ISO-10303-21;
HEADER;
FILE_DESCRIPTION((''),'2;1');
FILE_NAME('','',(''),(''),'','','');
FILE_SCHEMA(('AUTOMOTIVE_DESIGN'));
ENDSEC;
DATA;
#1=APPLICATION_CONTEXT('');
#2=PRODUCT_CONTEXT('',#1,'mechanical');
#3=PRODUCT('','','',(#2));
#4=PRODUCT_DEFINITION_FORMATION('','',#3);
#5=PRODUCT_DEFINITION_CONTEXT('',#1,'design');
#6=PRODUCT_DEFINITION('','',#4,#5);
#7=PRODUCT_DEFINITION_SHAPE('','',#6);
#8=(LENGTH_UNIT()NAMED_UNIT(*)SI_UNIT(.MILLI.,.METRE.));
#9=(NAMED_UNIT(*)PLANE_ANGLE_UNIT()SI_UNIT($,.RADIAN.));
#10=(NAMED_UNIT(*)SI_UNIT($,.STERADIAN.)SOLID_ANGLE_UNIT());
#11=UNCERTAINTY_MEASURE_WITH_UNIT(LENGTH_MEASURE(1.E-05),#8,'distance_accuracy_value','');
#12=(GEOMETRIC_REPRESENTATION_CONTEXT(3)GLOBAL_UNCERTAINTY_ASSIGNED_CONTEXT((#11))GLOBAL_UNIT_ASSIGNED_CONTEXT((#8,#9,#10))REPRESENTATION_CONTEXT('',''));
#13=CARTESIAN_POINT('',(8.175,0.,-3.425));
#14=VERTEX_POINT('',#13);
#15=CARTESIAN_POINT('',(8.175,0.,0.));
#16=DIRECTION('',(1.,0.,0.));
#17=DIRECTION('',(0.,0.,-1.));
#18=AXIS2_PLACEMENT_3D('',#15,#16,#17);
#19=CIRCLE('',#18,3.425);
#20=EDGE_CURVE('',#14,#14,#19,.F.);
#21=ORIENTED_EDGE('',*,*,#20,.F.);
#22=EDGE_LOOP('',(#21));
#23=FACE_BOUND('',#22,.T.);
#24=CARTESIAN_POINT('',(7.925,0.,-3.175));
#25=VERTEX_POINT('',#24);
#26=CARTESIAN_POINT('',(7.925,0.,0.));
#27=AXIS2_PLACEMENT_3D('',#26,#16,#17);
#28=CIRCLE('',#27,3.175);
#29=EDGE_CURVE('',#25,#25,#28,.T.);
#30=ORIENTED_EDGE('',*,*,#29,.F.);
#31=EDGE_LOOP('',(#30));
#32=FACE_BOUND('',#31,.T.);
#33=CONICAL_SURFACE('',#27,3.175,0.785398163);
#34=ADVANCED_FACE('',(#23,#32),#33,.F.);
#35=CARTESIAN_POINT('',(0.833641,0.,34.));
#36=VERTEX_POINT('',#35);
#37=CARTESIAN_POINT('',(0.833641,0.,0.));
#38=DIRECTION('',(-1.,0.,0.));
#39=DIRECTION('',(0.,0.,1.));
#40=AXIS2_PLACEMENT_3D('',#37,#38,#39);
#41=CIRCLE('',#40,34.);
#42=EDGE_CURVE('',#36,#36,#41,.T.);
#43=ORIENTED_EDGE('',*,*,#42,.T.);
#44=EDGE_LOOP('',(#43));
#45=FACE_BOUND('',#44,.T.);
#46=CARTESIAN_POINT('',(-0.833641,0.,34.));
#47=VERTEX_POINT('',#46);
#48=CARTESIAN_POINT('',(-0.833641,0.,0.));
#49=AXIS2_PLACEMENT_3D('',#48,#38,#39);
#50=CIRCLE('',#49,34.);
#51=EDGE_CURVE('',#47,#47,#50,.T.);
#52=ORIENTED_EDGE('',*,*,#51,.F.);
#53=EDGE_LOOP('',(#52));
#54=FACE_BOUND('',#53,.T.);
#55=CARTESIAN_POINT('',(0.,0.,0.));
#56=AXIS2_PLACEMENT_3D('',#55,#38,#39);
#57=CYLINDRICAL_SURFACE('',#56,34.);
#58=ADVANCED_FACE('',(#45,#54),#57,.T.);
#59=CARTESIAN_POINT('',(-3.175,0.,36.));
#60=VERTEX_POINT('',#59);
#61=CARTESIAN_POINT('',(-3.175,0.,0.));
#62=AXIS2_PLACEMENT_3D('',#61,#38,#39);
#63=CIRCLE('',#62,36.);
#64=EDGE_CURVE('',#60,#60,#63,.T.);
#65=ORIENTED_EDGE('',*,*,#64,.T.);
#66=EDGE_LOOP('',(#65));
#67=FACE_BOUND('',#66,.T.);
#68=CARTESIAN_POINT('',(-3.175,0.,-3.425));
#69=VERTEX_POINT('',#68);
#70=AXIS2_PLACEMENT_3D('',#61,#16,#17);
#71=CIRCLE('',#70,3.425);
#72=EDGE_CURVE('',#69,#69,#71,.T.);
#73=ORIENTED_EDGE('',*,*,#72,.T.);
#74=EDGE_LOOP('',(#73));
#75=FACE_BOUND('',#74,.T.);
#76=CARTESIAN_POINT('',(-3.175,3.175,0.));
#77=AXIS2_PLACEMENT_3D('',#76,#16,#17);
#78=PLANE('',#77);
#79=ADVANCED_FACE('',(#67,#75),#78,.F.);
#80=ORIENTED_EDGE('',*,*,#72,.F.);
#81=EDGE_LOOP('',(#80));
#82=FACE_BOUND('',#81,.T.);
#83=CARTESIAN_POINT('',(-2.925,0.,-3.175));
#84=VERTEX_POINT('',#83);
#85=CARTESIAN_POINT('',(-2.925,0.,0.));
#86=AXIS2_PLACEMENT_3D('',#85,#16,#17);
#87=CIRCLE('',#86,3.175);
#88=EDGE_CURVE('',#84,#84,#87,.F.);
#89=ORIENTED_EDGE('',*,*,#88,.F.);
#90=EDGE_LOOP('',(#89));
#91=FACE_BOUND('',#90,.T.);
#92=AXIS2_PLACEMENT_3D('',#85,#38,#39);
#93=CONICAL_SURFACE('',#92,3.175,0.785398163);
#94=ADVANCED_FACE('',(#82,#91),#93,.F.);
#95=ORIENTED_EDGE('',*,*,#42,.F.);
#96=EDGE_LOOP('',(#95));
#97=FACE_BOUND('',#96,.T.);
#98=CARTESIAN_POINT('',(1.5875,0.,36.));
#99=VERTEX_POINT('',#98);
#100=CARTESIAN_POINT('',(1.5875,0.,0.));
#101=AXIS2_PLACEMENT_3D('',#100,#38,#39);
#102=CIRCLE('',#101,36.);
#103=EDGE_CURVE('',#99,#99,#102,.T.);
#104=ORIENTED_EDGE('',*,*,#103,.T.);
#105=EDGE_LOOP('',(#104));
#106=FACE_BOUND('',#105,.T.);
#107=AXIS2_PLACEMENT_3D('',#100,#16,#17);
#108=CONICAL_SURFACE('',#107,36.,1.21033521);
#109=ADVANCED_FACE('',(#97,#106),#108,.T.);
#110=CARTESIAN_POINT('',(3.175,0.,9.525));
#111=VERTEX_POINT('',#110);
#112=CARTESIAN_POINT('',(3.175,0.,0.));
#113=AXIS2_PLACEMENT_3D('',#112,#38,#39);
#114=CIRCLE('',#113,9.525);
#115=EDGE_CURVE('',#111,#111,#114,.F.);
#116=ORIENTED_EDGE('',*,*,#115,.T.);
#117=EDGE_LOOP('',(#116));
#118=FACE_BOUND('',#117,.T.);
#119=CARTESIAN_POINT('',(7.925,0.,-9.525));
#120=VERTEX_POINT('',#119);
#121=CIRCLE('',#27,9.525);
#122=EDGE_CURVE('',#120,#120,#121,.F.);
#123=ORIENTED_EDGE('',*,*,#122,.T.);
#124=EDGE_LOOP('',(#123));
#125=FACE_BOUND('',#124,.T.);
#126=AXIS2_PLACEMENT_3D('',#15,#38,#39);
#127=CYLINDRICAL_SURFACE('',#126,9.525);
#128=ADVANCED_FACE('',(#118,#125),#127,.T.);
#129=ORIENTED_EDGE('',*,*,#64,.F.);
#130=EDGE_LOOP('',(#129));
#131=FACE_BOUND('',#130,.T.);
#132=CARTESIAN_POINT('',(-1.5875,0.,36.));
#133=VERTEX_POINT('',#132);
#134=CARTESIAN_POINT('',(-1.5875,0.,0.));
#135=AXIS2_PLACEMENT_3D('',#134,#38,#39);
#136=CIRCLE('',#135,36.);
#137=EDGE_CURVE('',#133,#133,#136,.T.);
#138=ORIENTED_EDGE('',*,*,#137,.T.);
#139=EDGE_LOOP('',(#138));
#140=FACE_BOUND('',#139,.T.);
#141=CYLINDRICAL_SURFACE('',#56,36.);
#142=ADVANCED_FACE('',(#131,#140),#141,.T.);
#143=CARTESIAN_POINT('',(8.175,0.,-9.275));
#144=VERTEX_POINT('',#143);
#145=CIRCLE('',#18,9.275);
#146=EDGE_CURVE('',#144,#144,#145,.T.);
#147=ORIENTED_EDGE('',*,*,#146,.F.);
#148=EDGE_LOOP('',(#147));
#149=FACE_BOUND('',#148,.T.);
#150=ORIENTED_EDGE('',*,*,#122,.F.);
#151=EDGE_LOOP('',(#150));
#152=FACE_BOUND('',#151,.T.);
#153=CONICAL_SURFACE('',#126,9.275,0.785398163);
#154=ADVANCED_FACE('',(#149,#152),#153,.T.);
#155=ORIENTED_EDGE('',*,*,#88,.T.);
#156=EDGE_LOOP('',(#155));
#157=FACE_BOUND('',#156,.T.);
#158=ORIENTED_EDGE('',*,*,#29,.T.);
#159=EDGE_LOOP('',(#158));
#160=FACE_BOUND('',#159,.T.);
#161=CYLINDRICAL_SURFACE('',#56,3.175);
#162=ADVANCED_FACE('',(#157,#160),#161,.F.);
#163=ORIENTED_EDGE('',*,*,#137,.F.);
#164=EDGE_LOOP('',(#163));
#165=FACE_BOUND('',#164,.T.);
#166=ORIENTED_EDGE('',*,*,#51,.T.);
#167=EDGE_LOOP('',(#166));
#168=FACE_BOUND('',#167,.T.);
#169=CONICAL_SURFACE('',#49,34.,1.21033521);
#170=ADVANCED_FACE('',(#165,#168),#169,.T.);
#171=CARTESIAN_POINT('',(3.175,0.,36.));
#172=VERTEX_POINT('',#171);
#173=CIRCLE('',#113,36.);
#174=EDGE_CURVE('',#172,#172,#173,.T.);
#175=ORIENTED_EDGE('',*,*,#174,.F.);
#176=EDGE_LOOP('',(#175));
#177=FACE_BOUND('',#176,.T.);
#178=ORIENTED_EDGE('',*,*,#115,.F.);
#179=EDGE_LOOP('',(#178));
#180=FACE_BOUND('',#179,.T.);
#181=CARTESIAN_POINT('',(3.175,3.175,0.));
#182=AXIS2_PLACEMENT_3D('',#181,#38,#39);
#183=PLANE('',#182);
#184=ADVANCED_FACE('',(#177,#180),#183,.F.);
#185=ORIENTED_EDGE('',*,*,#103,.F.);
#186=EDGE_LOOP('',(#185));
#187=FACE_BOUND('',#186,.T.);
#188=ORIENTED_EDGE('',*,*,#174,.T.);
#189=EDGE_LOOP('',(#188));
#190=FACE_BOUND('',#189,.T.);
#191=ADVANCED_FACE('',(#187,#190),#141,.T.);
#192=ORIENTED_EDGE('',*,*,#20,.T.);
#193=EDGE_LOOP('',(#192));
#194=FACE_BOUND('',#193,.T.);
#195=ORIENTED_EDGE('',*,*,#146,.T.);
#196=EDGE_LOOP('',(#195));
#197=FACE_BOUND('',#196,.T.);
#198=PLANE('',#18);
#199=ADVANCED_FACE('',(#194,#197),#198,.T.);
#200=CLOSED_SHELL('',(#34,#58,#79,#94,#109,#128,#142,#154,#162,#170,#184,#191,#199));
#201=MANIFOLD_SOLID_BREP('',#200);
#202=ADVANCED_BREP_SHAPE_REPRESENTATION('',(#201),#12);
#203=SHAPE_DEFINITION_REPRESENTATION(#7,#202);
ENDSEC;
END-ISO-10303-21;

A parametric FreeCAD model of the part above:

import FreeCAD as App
import Part
import Sketcher

V = App.Vector
Q = App.Units.Quantity


def edges_at(feature, points):
    """Names of the edges that pass closest to the given points."""
    edges = feature.Shape.Edges
    near = lambda p: min(range(len(edges)), key=lambda i: edges[i].distToShape(Part.Vertex(*p))[0])
    return sorted({f"Edge{near(p) + 1}" for p in points})

doc = App.newDocument("Part")
body = doc.addObject("PartDesign::Body", "Body")

sketch1 = body.newObject("Sketcher::SketchObject", "Sketch")
sketch1.AttachmentSupport = (doc.getObject("XY_Plane"), [""])
sketch1.MapMode = "FlatFace"
sketch1.addGeometry(Part.LineSegment(V(-3.2, 3.2, 0), V(3.2, 3.2, 0)), False)
sketch1.addGeometry(Part.LineSegment(V(3.2, 3.2, 0), V(3.2, 36, 0)), False)
sketch1.addGeometry(Part.LineSegment(V(3.2, 36, 0), V(1.6, 36, 0)), False)
sketch1.addGeometry(Part.LineSegment(V(1.6, 36, 0), V(0.8, 34, 0)), False)
sketch1.addGeometry(Part.LineSegment(V(0.8, 34, 0), V(-0.8, 34, 0)), False)
sketch1.addGeometry(Part.LineSegment(V(-0.8, 34, 0), V(-1.6, 36, 0)), False)
sketch1.addGeometry(Part.LineSegment(V(-1.6, 36, 0), V(-3.2, 36, 0)), False)
sketch1.addGeometry(Part.LineSegment(V(-3.2, 36, 0), V(-3.2, 3.2, 0)), False)
sketch1.addConstraint(Sketcher.Constraint("Coincident", 0, 2, 1, 1))
sketch1.addConstraint(Sketcher.Constraint("Coincident", 1, 2, 2, 1))
sketch1.addConstraint(Sketcher.Constraint("Coincident", 2, 2, 3, 1))
sketch1.addConstraint(Sketcher.Constraint("Coincident", 3, 2, 4, 1))
sketch1.addConstraint(Sketcher.Constraint("Coincident", 4, 2, 5, 1))
sketch1.addConstraint(Sketcher.Constraint("Coincident", 5, 2, 6, 1))
sketch1.addConstraint(Sketcher.Constraint("Coincident", 6, 2, 7, 1))
sketch1.addConstraint(Sketcher.Constraint("Coincident", 7, 2, 0, 1))
sketch1.addConstraint(Sketcher.Constraint("Horizontal", 0))
sketch1.addConstraint(Sketcher.Constraint("Vertical", 1))
sketch1.addConstraint(Sketcher.Constraint("Horizontal", 2))
sketch1.addConstraint(Sketcher.Constraint("Horizontal", 4))
sketch1.addConstraint(Sketcher.Constraint("Horizontal", 6))
sketch1.addConstraint(Sketcher.Constraint("Vertical", 7))
sketch1.addConstraint(Sketcher.Constraint("Symmetric", 2, 2, 5, 2, -2))
sketch1.addConstraint(Sketcher.Constraint("Equal", 2, 6))
sketch1.addConstraint(Sketcher.Constraint("Equal", 3, 5))
sketch1.addConstraint(Sketcher.Constraint("DistanceX", 0, 1, 0, 2, Q("0.25 in")))
sketch1.addConstraint(Sketcher.Constraint("DistanceX", 2, 2, 2, 1, Q("0.0625 in")))
sketch1.addConstraint(Sketcher.Constraint("DistanceY", -1, 1, 0, 2, Q("0.125 in")))
sketch1.addConstraint(Sketcher.Constraint("DistanceY", 1, 1, 1, 2, Q("32.825 mm")))
sketch1.addConstraint(Sketcher.Constraint("DistanceY", -1, 1, 3, 2, Q("34 mm")))
sketch1.addConstraint(Sketcher.Constraint("Distance", 3, Q("2.137359 mm")))
revolution = body.newObject("PartDesign::Revolution", "Revolution")
revolution.Profile = sketch1
revolution.ReferenceAxis = (sketch1, ["H_Axis"])
revolution.Angle = 360

sketch2 = body.newObject("Sketcher::SketchObject", "Sketch001")
sketch2.AttachmentSupport = (doc.getObject("YZ_Plane"), [""])
sketch2.MapMode = "FlatFace"
sketch2.AttachmentOffset = App.Placement(V(0, 0, 0.125 * 25.4), App.Rotation())
sketch2.addGeometry(Part.Circle(V(0, 0, 0), V(0, 0, 1), 10), False)
sketch2.addConstraint(Sketcher.Constraint("Coincident", 0, 3, -1, 1))
sketch2.addConstraint(Sketcher.Constraint("Diameter", 0, Q("0.75 in")))
pad1 = body.newObject("PartDesign::Pad", "Pad")
pad1.Profile = sketch2
pad1.Length = 5

sketch3 = body.newObject("Sketcher::SketchObject", "Sketch002")
sketch3.AttachmentSupport = (doc.getObject("YZ_Plane"), [""])
sketch3.MapMode = "FlatFace"
sketch3.AttachmentOffset = App.Placement(V(0, 0, 8.175), App.Rotation())
sketch3.addGeometry(Part.Circle(V(0, 0, 0), V(0, 0, 1), 3.2), False)
sketch3.addConstraint(Sketcher.Constraint("Coincident", 0, 3, -1, 1))
sketch3.addConstraint(Sketcher.Constraint("Diameter", 0, Q("0.25 in")))
pocket1 = body.newObject("PartDesign::Pocket", "Pocket")
pocket1.Profile = sketch3
pocket1.Type = "ThroughAll"
doc.recompute()

chamfer = body.newObject("PartDesign::Chamfer", "Chamfer")
chamfer.Base = (pocket1, edges_at(pocket1, [(8.175, 0, -9.525), (8.175, 0, -3.175), (-3.175, 0, -3.175)]))
chamfer.Size = 0.25

doc.recompute()
